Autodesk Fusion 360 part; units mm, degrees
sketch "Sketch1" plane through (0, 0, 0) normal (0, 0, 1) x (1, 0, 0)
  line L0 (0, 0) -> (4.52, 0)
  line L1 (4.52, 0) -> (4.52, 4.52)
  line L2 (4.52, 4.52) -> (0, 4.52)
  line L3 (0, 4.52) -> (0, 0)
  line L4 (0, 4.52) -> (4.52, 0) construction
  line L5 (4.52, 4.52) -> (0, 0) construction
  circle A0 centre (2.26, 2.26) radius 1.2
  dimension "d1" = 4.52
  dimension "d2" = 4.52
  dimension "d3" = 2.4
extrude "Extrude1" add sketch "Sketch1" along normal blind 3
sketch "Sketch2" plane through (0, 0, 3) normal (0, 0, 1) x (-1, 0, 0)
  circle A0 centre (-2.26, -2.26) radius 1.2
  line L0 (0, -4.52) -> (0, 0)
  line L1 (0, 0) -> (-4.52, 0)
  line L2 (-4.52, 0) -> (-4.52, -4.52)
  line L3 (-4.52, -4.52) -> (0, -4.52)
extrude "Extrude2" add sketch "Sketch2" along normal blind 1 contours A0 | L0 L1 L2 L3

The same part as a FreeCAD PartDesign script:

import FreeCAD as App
import Part
import Sketcher

doc = App.newDocument("Part")
body = doc.addObject("PartDesign::Body", "Body")

# Sketch on XY plane
sketch1 = body.newObject("Sketcher::SketchObject", "Sketch")
sketch1.AttachmentSupport = (doc.getObject("XY_Plane"), [""])
sketch1.MapMode = "FlatFace"
sketch1.addGeometry([
    Part.LineSegment(App.Vector(0, 4.5, 0), App.Vector(0, 0, 0)),  # 0
    Part.LineSegment(App.Vector(0, 0, 0), App.Vector(4.5, 0, 0)),  # 1
    Part.LineSegment(App.Vector(4.5, 0, 0), App.Vector(4.5, 4.5, 0)),  # 2
    Part.LineSegment(App.Vector(4.5, 4.5, 0), App.Vector(0, 4.5, 0)),  # 3
    Part.Circle(App.Vector(2.3, 2.3, 0), App.Vector(0, 0, 1), 1.2),  # 4
], False)
sketch1.addConstraint([
    Sketcher.Constraint("Coincident", 0, 2, 1, 1),
    Sketcher.Constraint("Coincident", 1, 2, 2, 1),
    Sketcher.Constraint("Coincident", 2, 2, 3, 1),
    Sketcher.Constraint("Coincident", 3, 2, 0, 1),
    Sketcher.Constraint("Vertical", 0),
    Sketcher.Constraint("Horizontal", 1),
    Sketcher.Constraint("Vertical", 2),
    Sketcher.Constraint("Horizontal", 3),
    Sketcher.Constraint("Coincident", 0, 2, -1, 1),
    Sketcher.Constraint("Equal", 3, 0),
    Sketcher.Constraint("Diameter", 4, 2.4),
    Sketcher.Constraint("DistanceX", 1, 1, 1, 2, 4.52),
    Sketcher.Constraint("DistanceX", -1, 1, 4, 3, 2.26),
    Sketcher.Constraint("DistanceY", -1, 1, 4, 3, 2.26),
])
pad1 = body.newObject("PartDesign::Pad", "Pad")
pad1.Profile = sketch1
pad1.Length = 3

# Sketch on XY plane
sketch2 = body.newObject("Sketcher::SketchObject", "Sketch001")
sketch2.AttachmentSupport = (doc.getObject("XY_Plane"), [""])
sketch2.MapMode = "FlatFace"
sketch2.AttachmentOffset = App.Placement(App.Vector(0, 0, 3), App.Rotation())
sketch2.addGeometry([
    Part.LineSegment(App.Vector(4.5, 4.5, 0), App.Vector(0, 4.5, 0)),
    Part.LineSegment(App.Vector(0, 4.5, 0), App.Vector(0, 0, 0)),
    Part.LineSegment(App.Vector(0, 0, 0), App.Vector(4.5, 0, 0)),
    Part.LineSegment(App.Vector(4.5, 0, 0), App.Vector(4.5, 4.5, 0)),
], False)
sketch2.addConstraint([
    Sketcher.Constraint("Coincident", 0, 2, 1, 1),
    Sketcher.Constraint("Coincident", 1, 2, 2, 1),
    Sketcher.Constraint("Coincident", 2, 2, 3, 1),
    Sketcher.Constraint("Coincident", 3, 2, 0, 1),
    Sketcher.Constraint("Horizontal", 0),
    Sketcher.Constraint("Vertical", 1),
    Sketcher.Constraint("Horizontal", 2),
    Sketcher.Constraint("Vertical", 3),
    Sketcher.Constraint("Coincident", 1, 2, -1, 1),
    Sketcher.Constraint("Equal", 2, 1),
    Sketcher.Constraint("DistanceX", 0, 2, 0, 1, 4.52),
])
pad2 = body.newObject("PartDesign::Pad", "Pad001")
pad2.Profile = sketch2
pad2.Length = 1

doc.recompute()
